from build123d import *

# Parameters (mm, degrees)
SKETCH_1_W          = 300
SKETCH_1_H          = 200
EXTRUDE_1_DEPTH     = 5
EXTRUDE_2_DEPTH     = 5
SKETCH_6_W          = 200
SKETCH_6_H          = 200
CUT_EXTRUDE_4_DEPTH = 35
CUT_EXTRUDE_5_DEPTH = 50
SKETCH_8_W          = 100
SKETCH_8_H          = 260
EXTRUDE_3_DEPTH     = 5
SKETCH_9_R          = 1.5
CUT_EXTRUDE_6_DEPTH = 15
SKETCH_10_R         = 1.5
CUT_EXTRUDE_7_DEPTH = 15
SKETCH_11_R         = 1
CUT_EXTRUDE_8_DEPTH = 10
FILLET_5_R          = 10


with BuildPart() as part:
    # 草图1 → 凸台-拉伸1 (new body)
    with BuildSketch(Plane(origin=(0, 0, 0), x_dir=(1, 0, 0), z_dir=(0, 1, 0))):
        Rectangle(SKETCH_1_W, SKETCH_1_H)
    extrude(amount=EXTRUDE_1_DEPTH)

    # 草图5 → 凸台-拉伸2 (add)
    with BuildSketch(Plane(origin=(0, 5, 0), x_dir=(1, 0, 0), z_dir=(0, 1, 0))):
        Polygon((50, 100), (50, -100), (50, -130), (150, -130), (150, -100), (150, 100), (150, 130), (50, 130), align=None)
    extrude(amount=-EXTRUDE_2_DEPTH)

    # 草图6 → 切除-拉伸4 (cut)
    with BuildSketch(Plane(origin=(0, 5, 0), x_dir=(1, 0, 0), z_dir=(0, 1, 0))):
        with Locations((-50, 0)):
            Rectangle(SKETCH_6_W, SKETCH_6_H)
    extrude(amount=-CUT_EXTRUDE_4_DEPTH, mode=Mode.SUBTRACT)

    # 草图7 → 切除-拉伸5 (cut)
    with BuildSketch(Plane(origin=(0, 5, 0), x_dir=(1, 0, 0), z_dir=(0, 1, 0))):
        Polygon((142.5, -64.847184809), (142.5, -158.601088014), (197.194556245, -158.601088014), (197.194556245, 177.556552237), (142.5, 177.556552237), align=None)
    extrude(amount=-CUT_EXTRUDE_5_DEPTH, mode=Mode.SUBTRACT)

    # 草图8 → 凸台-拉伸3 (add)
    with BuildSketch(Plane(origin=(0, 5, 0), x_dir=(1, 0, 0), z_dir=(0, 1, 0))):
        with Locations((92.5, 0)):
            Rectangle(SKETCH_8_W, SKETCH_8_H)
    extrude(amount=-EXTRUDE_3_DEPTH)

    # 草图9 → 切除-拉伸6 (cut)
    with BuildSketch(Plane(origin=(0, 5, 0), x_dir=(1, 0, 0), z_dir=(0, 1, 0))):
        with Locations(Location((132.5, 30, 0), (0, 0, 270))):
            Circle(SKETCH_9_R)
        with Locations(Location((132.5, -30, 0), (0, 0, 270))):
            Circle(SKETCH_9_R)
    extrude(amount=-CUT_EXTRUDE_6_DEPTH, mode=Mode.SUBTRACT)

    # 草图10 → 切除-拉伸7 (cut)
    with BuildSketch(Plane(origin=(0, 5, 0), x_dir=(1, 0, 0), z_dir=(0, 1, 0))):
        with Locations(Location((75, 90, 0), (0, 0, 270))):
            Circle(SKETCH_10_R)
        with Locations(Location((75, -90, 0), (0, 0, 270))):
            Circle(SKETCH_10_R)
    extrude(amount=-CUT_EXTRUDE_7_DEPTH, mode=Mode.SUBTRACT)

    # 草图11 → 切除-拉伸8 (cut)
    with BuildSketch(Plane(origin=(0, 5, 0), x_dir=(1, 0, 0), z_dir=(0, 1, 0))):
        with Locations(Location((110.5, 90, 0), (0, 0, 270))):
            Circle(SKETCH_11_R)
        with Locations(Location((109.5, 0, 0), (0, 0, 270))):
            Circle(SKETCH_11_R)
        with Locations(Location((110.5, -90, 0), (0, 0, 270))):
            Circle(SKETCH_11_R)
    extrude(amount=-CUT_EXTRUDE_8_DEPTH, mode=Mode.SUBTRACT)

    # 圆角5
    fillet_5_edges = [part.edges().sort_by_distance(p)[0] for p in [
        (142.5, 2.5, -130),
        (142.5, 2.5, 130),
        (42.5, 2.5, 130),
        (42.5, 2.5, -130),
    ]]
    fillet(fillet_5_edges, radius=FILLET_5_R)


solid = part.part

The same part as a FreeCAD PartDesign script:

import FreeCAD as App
import Part
import Sketcher

V = App.Vector


def edges_at(feature, points):
    """Names of the edges that pass closest to the given points."""
    edges = feature.Shape.Edges
    near = lambda p: min(range(len(edges)), key=lambda i: edges[i].distToShape(Part.Vertex(*p))[0])
    return sorted({f"Edge{near(p) + 1}" for p in points})

doc = App.newDocument("Part")
body = doc.addObject("PartDesign::Body", "Body")

# Sketch on XZ plane
sketch1 = body.newObject("Sketcher::SketchObject", "Sketch")
sketch1.AttachmentSupport = (doc.getObject("XZ_Plane"), [""])
sketch1.MapMode = "FlatFace"
sketch1.addGeometry([
    Part.LineSegment(V(-150, -100, 0), V(-150, 100, 0)),
    Part.LineSegment(V(-150, 100, 0), V(150, 100, 0)),
    Part.LineSegment(V(150, 100, 0), V(150, -100, 0)),
    Part.LineSegment(V(150, -100, 0), V(-150, -100, 0)),
], False)
sketch1.addConstraint([
    Sketcher.Constraint("Coincident", 0, 2, 1, 1),
    Sketcher.Constraint("Coincident", 1, 2, 2, 1),
    Sketcher.Constraint("Coincident", 2, 2, 3, 1),
    Sketcher.Constraint("Coincident", 3, 2, 0, 1),
    Sketcher.Constraint("Vertical", 0),
    Sketcher.Constraint("Horizontal", 1),
    Sketcher.Constraint("Vertical", 2),
    Sketcher.Constraint("Horizontal", 3),
    Sketcher.Constraint("Symmetric", 0, 2, 2, 2, -1, 1),
    Sketcher.Constraint("DistanceX", 1, 1, 1, 2, 300.0),
    Sketcher.Constraint("DistanceY", 0, 1, 0, 2, 200.0),
])
pad1 = body.newObject("PartDesign::Pad", "Pad")
pad1.Profile = sketch1
pad1.Length = 5
pad1.Reversed = True

# Sketch on XZ plane
sketch2 = body.newObject("Sketcher::SketchObject", "Sketch001")
sketch2.AttachmentSupport = (doc.getObject("XZ_Plane"), [""])
sketch2.MapMode = "FlatFace"
sketch2.AttachmentOffset = App.Placement(V(0, 0, -5), App.Rotation())
sketch2.addGeometry([
    Part.LineSegment(V(50, 130, 0), V(150, 130, 0)),
    Part.LineSegment(V(150, 130, 0), V(150, -130, 0)),
    Part.LineSegment(V(150, -130, 0), V(50, -130, 0)),
    Part.LineSegment(V(50, -130, 0), V(50, 130, 0)),
], False)
sketch2.addConstraint([
    Sketcher.Constraint("Coincident", 0, 2, 1, 1),
    Sketcher.Constraint("Coincident", 1, 2, 2, 1),
    Sketcher.Constraint("Coincident", 2, 2, 3, 1),
    Sketcher.Constraint("Coincident", 3, 2, 0, 1),
    Sketcher.Constraint("Horizontal", 0),
    Sketcher.Constraint("Vertical", 1),
    Sketcher.Constraint("Horizontal", 2),
    Sketcher.Constraint("Vertical", 3),
    Sketcher.Constraint("DistanceX", 0, 1, 0, 2, 100.0),
    Sketcher.Constraint("DistanceY", 1, 2, 1, 1, 260.0),
    Sketcher.Constraint("DistanceX", -1, 1, 0, 2, 150.0),
    Sketcher.Constraint("DistanceY", -1, 1, 0, 2, 130.0),
])
pad2 = body.newObject("PartDesign::Pad", "Pad001")
pad2.Profile = sketch2
pad2.Length = 5

# Sketch on XZ plane
sketch3 = body.newObject("Sketcher::SketchObject", "Sketch002")
sketch3.AttachmentSupport = (doc.getObject("XZ_Plane"), [""])
sketch3.MapMode = "FlatFace"
sketch3.AttachmentOffset = App.Placement(V(0, 0, -5), App.Rotation())
sketch3.addGeometry([
    Part.LineSegment(V(-150, -100, 0), V(-150, 100, 0)),
    Part.LineSegment(V(-150, 100, 0), V(50, 100, 0)),
    Part.LineSegment(V(50, 100, 0), V(50, -100, 0)),
    Part.LineSegment(V(50, -100, 0), V(-150, -100, 0)),
], False)
sketch3.addConstraint([
    Sketcher.Constraint("Coincident", 0, 2, 1, 1),
    Sketcher.Constraint("Coincident", 1, 2, 2, 1),
    Sketcher.Constraint("Coincident", 2, 2, 3, 1),
    Sketcher.Constraint("Coincident", 3, 2, 0, 1),
    Sketcher.Constraint("Vertical", 0),
    Sketcher.Constraint("Horizontal", 1),
    Sketcher.Constraint("Vertical", 2),
    Sketcher.Constraint("Horizontal", 3),
    Sketcher.Constraint("Equal", 3, 0),
    Sketcher.Constraint("DistanceX", 1, 1, 1, 2, 200.0),
    Sketcher.Constraint("DistanceX", 0, 2, -1, 1, 150.0),
    Sketcher.Constraint("DistanceY", -1, 1, 0, 2, 100.0),
])
pocket1 = body.newObject("PartDesign::Pocket", "Pocket")
pocket1.Profile = sketch3
pocket1.Length = 35
pocket1.Reversed = True

# Sketch on XZ plane
sketch4 = body.newObject("Sketcher::SketchObject", "Sketch003")
sketch4.AttachmentSupport = (doc.getObject("XZ_Plane"), [""])
sketch4.MapMode = "FlatFace"
sketch4.AttachmentOffset = App.Placement(V(0, 0, -5), App.Rotation())
sketch4.addGeometry([
    Part.LineSegment(V(142, 159, 0), V(197, 159, 0)),
    Part.LineSegment(V(197, 159, 0), V(197, -178, 0)),
    Part.LineSegment(V(197, -178, 0), V(142, -178, 0)),
    Part.LineSegment(V(142, -178, 0), V(142, 159, 0)),
], False)
sketch4.addConstraint([
    Sketcher.Constraint("Coincident", 0, 2, 1, 1),
    Sketcher.Constraint("Coincident", 1, 2, 2, 1),
    Sketcher.Constraint("Coincident", 2, 2, 3, 1),
    Sketcher.Constraint("Coincident", 3, 2, 0, 1),
    Sketcher.Constraint("Horizontal", 0),
    Sketcher.Constraint("Vertical", 1),
    Sketcher.Constraint("Horizontal", 2),
    Sketcher.Constraint("Vertical", 3),
    Sketcher.Constraint("DistanceX", -1, 1, 2, 2, 142.5),
    Sketcher.Constraint("DistanceY", 1, 2, 1, 1, 336.15764),
    Sketcher.Constraint("DistanceX", 0, 1, 0, 2, 54.694556),
    Sketcher.Constraint("DistanceY", -1, 1, 0, 2, 158.601088),
])
pocket2 = body.newObject("PartDesign::Pocket", "Pocket001")
pocket2.Profile = sketch4
pocket2.Length = 50
pocket2.Reversed = True

# Sketch on XZ plane
sketch5 = body.newObject("Sketcher::SketchObject", "Sketch004")
sketch5.AttachmentSupport = (doc.getObject("XZ_Plane"), [""])
sketch5.MapMode = "FlatFace"
sketch5.AttachmentOffset = App.Placement(V(0, 0, -5), App.Rotation())
sketch5.addGeometry([
    Part.LineSegment(V(42, -130, 0), V(42, 130, 0)),
    Part.LineSegment(V(42, 130, 0), V(142, 130, 0)),
    Part.LineSegment(V(142, 130, 0), V(142, -130, 0)),
    Part.LineSegment(V(142, -130, 0), V(42, -130, 0)),
], False)
sketch5.addConstraint([
    Sketcher.Constraint("Coincident", 0, 2, 1, 1),
    Sketcher.Constraint("Coincident", 1, 2, 2, 1),
    Sketcher.Constraint("Coincident", 2, 2, 3, 1),
    Sketcher.Constraint("Coincident", 3, 2, 0, 1),
    Sketcher.Constraint("Vertical", 0),
    Sketcher.Constraint("Horizontal", 1),
    Sketcher.Constraint("Vertical", 2),
    Sketcher.Constraint("Horizontal", 3),
    Sketcher.Constraint("DistanceX", 1, 1, 1, 2, 100.0),
    Sketcher.Constraint("DistanceY", 0, 1, 0, 2, 260.0),
    Sketcher.Constraint("DistanceY", -1, 1, 0, 2, 130.0),
    Sketcher.Constraint("DistanceX", -1, 1, 0, 2, 42.5),
])
pad3 = body.newObject("PartDesign::Pad", "Pad002")
pad3.Profile = sketch5
pad3.Length = 5

# Sketch on XZ plane
sketch6 = body.newObject("Sketcher::SketchObject", "Sketch005")
sketch6.AttachmentSupport = (doc.getObject("XZ_Plane"), [""])
sketch6.MapMode = "FlatFace"
sketch6.AttachmentOffset = App.Placement(V(0, 0, -5), App.Rotation())
sketch6.addGeometry([
    Part.Circle(V(132.5, -30, 0), V(0, 0, 1), 1.5),
    Part.Circle(V(132.5, 30, 0), V(0, 0, 1), 1.5),
], False)
sketch6.addConstraint([
    Sketcher.Constraint("Equal", 0, 1),
    Sketcher.Constraint("Symmetric", 0, 3, 1, 3, -1),
    Sketcher.Constraint("Diameter", 0, 3.0),
    Sketcher.Constraint("DistanceY", 0, 3, -1, 1, 30.0),
    Sketcher.Constraint("DistanceX", -1, 1, 0, 3, 132.5),
])
pocket3 = body.newObject("PartDesign::Pocket", "Pocket002")
pocket3.Profile = sketch6
pocket3.Length = 15
pocket3.Reversed = True

# Sketch on XZ plane
sketch7 = body.newObject("Sketcher::SketchObject", "Sketch006")
sketch7.AttachmentSupport = (doc.getObject("XZ_Plane"), [""])
sketch7.MapMode = "FlatFace"
sketch7.AttachmentOffset = App.Placement(V(0, 0, -5), App.Rotation())
sketch7.addGeometry([
    Part.Circle(V(75, -90, 0), V(0, 0, 1), 1.5),
    Part.Circle(V(75, 90, 0), V(0, 0, 1), 1.5),
], False)
sketch7.addConstraint([
    Sketcher.Constraint("Equal", 0, 1),
    Sketcher.Constraint("Symmetric", 0, 3, 1, 3, -1),
    Sketcher.Constraint("Diameter", 0, 3.0),
    Sketcher.Constraint("DistanceX", -1, 1, 0, 3, 75.0),
    Sketcher.Constraint("DistanceY", 0, 3, -1, 1, 90.0),
])
pocket4 = body.newObject("PartDesign::Pocket", "Pocket003")
pocket4.Profile = sketch7
pocket4.Length = 15
pocket4.Reversed = True

# Sketch on XZ plane
sketch8 = body.newObject("Sketcher::SketchObject", "Sketch007")
sketch8.AttachmentSupport = (doc.getObject("XZ_Plane"), [""])
sketch8.MapMode = "FlatFace"
sketch8.AttachmentOffset = App.Placement(V(0, 0, -5), App.Rotation())
sketch8.addGeometry([
    Part.Circle(V(110.5, -90, 0), V(0, 0, 1), 1),
    Part.Circle(V(109.5, 0, 0), V(0, 0, 1), 1),
    Part.Circle(V(110.5, 90, 0), V(0, 0, 1), 1),
], False)
sketch8.addConstraint([
    Sketcher.Constraint("Equal", 0, 1),
    Sketcher.Constraint("Equal", 1, 2),
    Sketcher.Constraint("Symmetric", 0, 3, 2, 3, -1),
    Sketcher.Constraint("PointOnObject", 1, 3, -1),
    Sketcher.Constraint("Diameter", 0, 2.0),
    Sketcher.Constraint("DistanceY", 0, 3, -1, 1, 90.0),
    Sketcher.Constraint("DistanceX", 1, 3, 0, 3, 1.0),
    Sketcher.Constraint("DistanceX", -1, 1, 0, 3, 110.5),
])
pocket5 = body.newObject("PartDesign::Pocket", "Pocket004")
pocket5.Profile = sketch8
pocket5.Length = 10
pocket5.Reversed = True
doc.recompute()

fillet = body.newObject("PartDesign::Fillet", "Fillet")
fillet.Base = (pocket5, edges_at(pocket5, [
    (142.5, 2.5, -130),
    (142.5, 2.5, 130),
    (42.5, 2.5, 130),
    (42.5, 2.5, -130),
]))
fillet.Radius = 10

doc.recompute()
